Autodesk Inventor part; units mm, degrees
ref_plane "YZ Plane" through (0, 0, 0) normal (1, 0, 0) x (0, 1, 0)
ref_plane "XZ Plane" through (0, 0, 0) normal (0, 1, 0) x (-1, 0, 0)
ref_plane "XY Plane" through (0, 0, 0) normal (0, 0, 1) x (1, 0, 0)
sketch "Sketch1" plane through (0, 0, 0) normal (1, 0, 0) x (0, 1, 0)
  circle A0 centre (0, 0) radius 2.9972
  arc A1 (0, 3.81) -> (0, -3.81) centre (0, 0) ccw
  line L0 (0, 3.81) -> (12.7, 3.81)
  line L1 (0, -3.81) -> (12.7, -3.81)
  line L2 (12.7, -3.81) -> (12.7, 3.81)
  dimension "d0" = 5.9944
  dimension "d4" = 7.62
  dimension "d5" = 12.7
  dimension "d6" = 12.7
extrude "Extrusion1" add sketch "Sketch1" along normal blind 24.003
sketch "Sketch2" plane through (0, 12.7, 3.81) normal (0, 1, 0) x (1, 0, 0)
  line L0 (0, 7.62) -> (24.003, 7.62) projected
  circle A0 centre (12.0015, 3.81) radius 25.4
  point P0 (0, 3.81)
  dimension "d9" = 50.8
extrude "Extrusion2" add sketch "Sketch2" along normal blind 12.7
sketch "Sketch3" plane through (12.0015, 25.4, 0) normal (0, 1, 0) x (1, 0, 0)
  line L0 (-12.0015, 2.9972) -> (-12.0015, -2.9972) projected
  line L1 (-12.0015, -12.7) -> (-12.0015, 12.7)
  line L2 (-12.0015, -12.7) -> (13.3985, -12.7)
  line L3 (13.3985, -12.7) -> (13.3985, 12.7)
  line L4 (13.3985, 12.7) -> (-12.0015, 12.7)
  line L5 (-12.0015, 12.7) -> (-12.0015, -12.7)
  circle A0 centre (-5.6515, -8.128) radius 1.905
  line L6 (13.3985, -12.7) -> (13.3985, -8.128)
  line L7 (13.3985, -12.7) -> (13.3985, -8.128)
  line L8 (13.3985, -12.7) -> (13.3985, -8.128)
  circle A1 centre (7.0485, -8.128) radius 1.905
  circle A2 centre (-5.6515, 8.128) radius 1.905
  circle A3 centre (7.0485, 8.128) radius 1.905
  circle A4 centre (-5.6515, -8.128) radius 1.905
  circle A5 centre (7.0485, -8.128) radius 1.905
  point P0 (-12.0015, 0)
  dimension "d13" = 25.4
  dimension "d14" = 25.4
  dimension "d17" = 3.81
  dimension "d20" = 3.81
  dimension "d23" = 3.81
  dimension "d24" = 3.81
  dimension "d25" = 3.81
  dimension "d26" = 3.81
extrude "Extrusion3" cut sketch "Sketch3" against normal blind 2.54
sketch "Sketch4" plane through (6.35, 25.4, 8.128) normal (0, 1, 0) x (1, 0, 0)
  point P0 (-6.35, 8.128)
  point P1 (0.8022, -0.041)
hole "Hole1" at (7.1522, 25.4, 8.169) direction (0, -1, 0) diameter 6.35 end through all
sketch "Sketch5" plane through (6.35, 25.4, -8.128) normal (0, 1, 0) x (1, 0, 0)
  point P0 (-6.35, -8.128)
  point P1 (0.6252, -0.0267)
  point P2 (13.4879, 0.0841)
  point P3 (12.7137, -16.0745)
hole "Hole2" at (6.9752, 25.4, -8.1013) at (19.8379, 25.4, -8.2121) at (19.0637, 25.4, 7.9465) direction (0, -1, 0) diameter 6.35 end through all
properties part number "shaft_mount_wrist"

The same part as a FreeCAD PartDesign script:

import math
import FreeCAD as App
import Part
import Sketcher
Q = App.Units.Quantity


def add_polygon(sketch, points):
    """Adds a closed chain of lines whose ends are joined by coincident constraints."""
    first, n = sketch.GeometryCount, len(points)
    for a, b in zip(points, points[1:] + points[:1]):
        sketch.addGeometry(Part.LineSegment(App.Vector(*a, 0), App.Vector(*b, 0)), False)
    for i in range(n):
        sketch.addConstraint(Sketcher.Constraint("Coincident", first + i, 2, first + (i + 1) % n, 1))

doc = App.newDocument("Part")
body = doc.addObject("PartDesign::Body", "Body")

# Sketch on YZ plane
sketch1 = body.newObject("Sketcher::SketchObject", "Sketch")
sketch1.AttachmentSupport = (doc.getObject("YZ_Plane"), [""])
sketch1.MapMode = "FlatFace"
sketch1.addGeometry(Part.LineSegment(App.Vector(12.7, 3.8, 0), App.Vector(0, 3.8, 0)), False)
sketch1.addGeometry(Part.ArcOfCircle(Part.Circle(App.Vector(0, 0, 0), App.Vector(0, 0, 1), 3.8), math.radians(90), math.radians(270)), False)
sketch1.addGeometry(Part.LineSegment(App.Vector(0, -3.8, 0), App.Vector(12.7, -3.8, 0)), False)
sketch1.addGeometry(Part.LineSegment(App.Vector(12.7, -3.8, 0), App.Vector(12.7, 3.8, 0)), False)
sketch1.addGeometry(Part.Circle(App.Vector(0, 0, 0), App.Vector(0, 0, 1), 3), False)
sketch1.addConstraint(Sketcher.Constraint("Tangent", 0, 2, 1, 1))
sketch1.addConstraint(Sketcher.Constraint("Tangent", 1, 2, 2, 1))
sketch1.addConstraint(Sketcher.Constraint("Coincident", 2, 2, 3, 1))
sketch1.addConstraint(Sketcher.Constraint("Coincident", 3, 2, 0, 1))
sketch1.addConstraint(Sketcher.Constraint("Horizontal", 0))
sketch1.addConstraint(Sketcher.Constraint("Horizontal", 2))
sketch1.addConstraint(Sketcher.Constraint("Vertical", 3))
sketch1.addConstraint(Sketcher.Constraint("Coincident", 1, 3, -1, 1))
sketch1.addConstraint(Sketcher.Constraint("Coincident", 4, 3, -1, 1))
sketch1.addConstraint(Sketcher.Constraint("Radius", 1, Q("0.15 in")))
sketch1.addConstraint(Sketcher.Constraint("Diameter", 4, Q("0.236 in")))
sketch1.addConstraint(Sketcher.Constraint("DistanceX", 0, 2, 0, 1, Q("0.5 in")))
pad1 = body.newObject("PartDesign::Pad", "Pad")
pad1.Profile = sketch1
pad1.Length = Q("0.945 in")

# Sketch on XZ plane
sketch2 = body.newObject("Sketcher::SketchObject", "Sketch001")
sketch2.AttachmentSupport = (doc.getObject("XZ_Plane"), [""])
sketch2.MapMode = "FlatFace"
sketch2.AttachmentOffset = App.Placement(App.Vector(0, 0, -0.5 * 25.4), App.Rotation())
sketch2.addGeometry(Part.Circle(App.Vector(12, 0, 0), App.Vector(0, 0, 1), 25), False)
sketch2.addConstraint(Sketcher.Constraint("PointOnObject", 0, 3, -1))
sketch2.addConstraint(Sketcher.Constraint("Diameter", 0, Q("2 in")))
sketch2.addConstraint(Sketcher.Constraint("DistanceX", -1, 1, 0, 3, Q("0.4725 in")))
pad2 = body.newObject("PartDesign::Pad", "Pad001")
pad2.Profile = sketch2
pad2.Length = Q("0.5 in")
pad2.Reversed = True

# Sketch on XZ plane
sketch3 = body.newObject("Sketcher::SketchObject", "Sketch002")
sketch3.AttachmentSupport = (doc.getObject("XZ_Plane"), [""])
sketch3.MapMode = "FlatFace"
sketch3.AttachmentOffset = App.Placement(App.Vector(0, 0, -1 * 25.4), App.Rotation())
add_polygon(sketch3, [(0, -12.7), (0, 12.7), (25.4, 12.7), (25.4, -12.7)])  # lines 0-3
sketch3.addGeometry(Part.Circle(App.Vector(6.3, 8.1, 0), App.Vector(0, 0, 1), 1.9), False)  # 4
sketch3.addGeometry(Part.Circle(App.Vector(19.1, 8.1, 0), App.Vector(0, 0, 1), 1.9), False)  # 5
sketch3.addGeometry(Part.Circle(App.Vector(6.3, -8.1, 0), App.Vector(0, 0, 1), 1.9), False)  # 6
sketch3.addGeometry(Part.Circle(App.Vector(19.1, -8.1, 0), App.Vector(0, 0, 1), 1.9), False)  # 7
sketch3.addConstraint(Sketcher.Constraint("Vertical", 0))
sketch3.addConstraint(Sketcher.Constraint("Horizontal", 1))
sketch3.addConstraint(Sketcher.Constraint("Vertical", 2))
sketch3.addConstraint(Sketcher.Constraint("Horizontal", 3))
sketch3.addConstraint(Sketcher.Constraint("Equal", 4, 5))
sketch3.addConstraint(Sketcher.Constraint("Equal", 5, 6))
sketch3.addConstraint(Sketcher.Constraint("Equal", 6, 7))
sketch3.addConstraint(Sketcher.Constraint("Symmetric", 0, 2, 3, 2, -1, 1))
sketch3.addConstraint(Sketcher.Constraint("Symmetric", 4, 3, 6, 3, -1))
sketch3.addConstraint(Sketcher.Constraint("Symmetric", 5, 3, 7, 3, -1))
sketch3.addConstraint(Sketcher.Constraint("Horizontal", 4, 3, 5, 3))
sketch3.addConstraint(Sketcher.Constraint("Equal", 3, 0))
sketch3.addConstraint(Sketcher.Constraint("Diameter", 4, Q("0.15 in")))
sketch3.addConstraint(Sketcher.Constraint("DistanceX", 1, 1, 1, 2, Q("1 in")))
sketch3.addConstraint(Sketcher.Constraint("DistanceX", 4, 3, 5, 3, Q("0.5 in")))
sketch3.addConstraint(Sketcher.Constraint("DistanceX", -1, 1, 4, 3, Q("0.25 in")))
sketch3.addConstraint(Sketcher.Constraint("DistanceY", -1, 1, 4, 3, Q("0.32 in")))
pocket1 = body.newObject("PartDesign::Pocket", "Pocket")
pocket1.Profile = sketch3
pocket1.Length = Q("0.1 in")
pocket1.Reversed = True

# Sketch on XZ plane
sketch4 = body.newObject("Sketcher::SketchObject", "Sketch003")
sketch4.AttachmentSupport = (doc.getObject("XZ_Plane"), [""])
sketch4.MapMode = "FlatFace"
sketch4.AttachmentOffset = App.Placement(App.Vector(0, 0, -1 * 25.4), App.Rotation())
sketch4.addGeometry(Part.Circle(App.Vector(7.2, 8.2, 0), App.Vector(0, 0, 1), 3.2), False)
sketch4.addConstraint(Sketcher.Constraint("Diameter", 0, Q("0.25 in")))
sketch4.addConstraint(Sketcher.Constraint("DistanceX", -1, 1, 0, 3, 7.1522))
sketch4.addConstraint(Sketcher.Constraint("DistanceY", -1, 1, 0, 3, 8.169))
doc.recompute()
hole = body.newObject("PartDesign::Hole", "Hole")
hole.Profile = sketch4
hole.ThreadType = "None"
hole.Diameter = Q("0.25 in")
hole.DepthType = "ThroughAll"
hole.Reversed = True

# Sketch on XZ plane
sketch5 = body.newObject("Sketcher::SketchObject", "Sketch004")
sketch5.AttachmentSupport = (doc.getObject("XZ_Plane"), [""])
sketch5.MapMode = "FlatFace"
sketch5.AttachmentOffset = App.Placement(App.Vector(0, 0, -1 * 25.4), App.Rotation())
sketch5.addGeometry(Part.Circle(App.Vector(7, -8.1, 0), App.Vector(0, 0, 1), 3.2), False)
sketch5.addGeometry(Part.Circle(App.Vector(19.8, -8.2, 0), App.Vector(0, 0, 1), 3.2), False)
sketch5.addGeometry(Part.Circle(App.Vector(19.1, 7.9, 0), App.Vector(0, 0, 1), 3.2), False)
sketch5.addConstraint(Sketcher.Constraint("Equal", 0, 1))
sketch5.addConstraint(Sketcher.Constraint("Equal", 1, 2))
sketch5.addConstraint(Sketcher.Constraint("Diameter", 0, Q("0.25 in")))
sketch5.addConstraint(Sketcher.Constraint("DistanceY", 1, 3, -1, 1, Q("0.3233 in")))
sketch5.addConstraint(Sketcher.Constraint("DistanceX", 0, 3, 1, 3, Q("0.5064 in")))
sketch5.addConstraint(Sketcher.Constraint("DistanceY", 0, 3, 2, 3, Q("0.6318 in")))
sketch5.addConstraint(Sketcher.Constraint("DistanceX", -1, 1, 0, 3, 6.9752))
sketch5.addConstraint(Sketcher.Constraint("DistanceY", 0, 3, -1, 1, 8.1013))
sketch5.addConstraint(Sketcher.Constraint("DistanceX", -1, 1, 2, 3, 19.0637))
doc.recompute()
hole2 = body.newObject("PartDesign::Hole", "Hole001")
hole2.Profile = sketch5
hole2.ThreadType = "None"
hole2.Diameter = Q("0.25 in")
hole2.DepthType = "ThroughAll"
hole2.Reversed = True

doc.recompute()
